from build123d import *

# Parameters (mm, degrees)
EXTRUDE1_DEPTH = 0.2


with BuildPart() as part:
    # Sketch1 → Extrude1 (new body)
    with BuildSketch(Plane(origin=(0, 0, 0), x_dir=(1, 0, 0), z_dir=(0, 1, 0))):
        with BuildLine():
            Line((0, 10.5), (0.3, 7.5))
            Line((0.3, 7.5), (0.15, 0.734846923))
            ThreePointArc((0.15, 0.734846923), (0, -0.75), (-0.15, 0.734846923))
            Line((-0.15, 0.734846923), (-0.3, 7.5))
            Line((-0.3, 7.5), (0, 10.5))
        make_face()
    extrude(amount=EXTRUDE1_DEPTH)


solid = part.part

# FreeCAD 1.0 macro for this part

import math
import FreeCAD as App
import Part
import Sketcher
from FreeCAD import Vector

doc = App.newDocument("Part")
body = doc.addObject("PartDesign::Body", "Body")

# Sketch on XZ plane
sketch1 = body.newObject("Sketcher::SketchObject", "Sketch")
sketch1.AttachmentSupport = (doc.getObject("XZ_Plane"), [""])
sketch1.MapMode = "FlatFace"
sketch1.addGeometry(Part.LineSegment(Vector(0.3, -7.5, 0), Vector(0, -10.5, 0)), False)
sketch1.addGeometry(Part.LineSegment(Vector(0, -10.5, 0), Vector(-0.3, -7.5, 0)), False)
sketch1.addGeometry(Part.LineSegment(Vector(-0.3, -7.5, 0), Vector(-0.15, -0.734847, 0)), False)
sketch1.addGeometry(Part.ArcOfCircle(Part.Circle(Vector(0, 0, 0), Vector(0, 0, 1), 0.75), math.radians(-78.463041), math.radians(258.463041)), False)
sketch1.addGeometry(Part.LineSegment(Vector(0.15, -0.734847, 0), Vector(0.3, -7.5, 0)), False)
sketch1.addConstraint(Sketcher.Constraint("Coincident", 0, 2, 1, 1))
sketch1.addConstraint(Sketcher.Constraint("Coincident", 1, 2, 2, 1))
sketch1.addConstraint(Sketcher.Constraint("Coincident", 2, 2, 3, 2))
sketch1.addConstraint(Sketcher.Constraint("Coincident", 3, 1, 4, 1))
sketch1.addConstraint(Sketcher.Constraint("Coincident", 4, 2, 0, 1))
sketch1.addConstraint(Sketcher.Constraint("Coincident", 3, 3, -1, 1))
sketch1.addConstraint(Sketcher.Constraint("Symmetric", 1, 2, 4, 2, -2))
sketch1.addConstraint(Sketcher.Constraint("PointOnObject", 0, 2, -2))
sketch1.addConstraint(Sketcher.Constraint("Horizontal", 2, 2, 3, 1))
sketch1.addConstraint(Sketcher.Constraint("Radius", 3, 0.75))
sketch1.addConstraint(Sketcher.Constraint("DistanceY", 0, 2, 1, 2, 3.0))
sketch1.addConstraint(Sketcher.Constraint("DistanceY", 0, 2, -1, 1, 10.5))
sketch1.addConstraint(Sketcher.Constraint("DistanceX", 1, 2, -1, 1, 0.3))
sketch1.addConstraint(Sketcher.Constraint("DistanceX", 2, 2, 3, 1, 0.3))
pad1 = body.newObject("PartDesign::Pad", "Pad")
pad1.Profile = sketch1
pad1.Length = 0.2
pad1.Reversed = True

doc.recompute()
